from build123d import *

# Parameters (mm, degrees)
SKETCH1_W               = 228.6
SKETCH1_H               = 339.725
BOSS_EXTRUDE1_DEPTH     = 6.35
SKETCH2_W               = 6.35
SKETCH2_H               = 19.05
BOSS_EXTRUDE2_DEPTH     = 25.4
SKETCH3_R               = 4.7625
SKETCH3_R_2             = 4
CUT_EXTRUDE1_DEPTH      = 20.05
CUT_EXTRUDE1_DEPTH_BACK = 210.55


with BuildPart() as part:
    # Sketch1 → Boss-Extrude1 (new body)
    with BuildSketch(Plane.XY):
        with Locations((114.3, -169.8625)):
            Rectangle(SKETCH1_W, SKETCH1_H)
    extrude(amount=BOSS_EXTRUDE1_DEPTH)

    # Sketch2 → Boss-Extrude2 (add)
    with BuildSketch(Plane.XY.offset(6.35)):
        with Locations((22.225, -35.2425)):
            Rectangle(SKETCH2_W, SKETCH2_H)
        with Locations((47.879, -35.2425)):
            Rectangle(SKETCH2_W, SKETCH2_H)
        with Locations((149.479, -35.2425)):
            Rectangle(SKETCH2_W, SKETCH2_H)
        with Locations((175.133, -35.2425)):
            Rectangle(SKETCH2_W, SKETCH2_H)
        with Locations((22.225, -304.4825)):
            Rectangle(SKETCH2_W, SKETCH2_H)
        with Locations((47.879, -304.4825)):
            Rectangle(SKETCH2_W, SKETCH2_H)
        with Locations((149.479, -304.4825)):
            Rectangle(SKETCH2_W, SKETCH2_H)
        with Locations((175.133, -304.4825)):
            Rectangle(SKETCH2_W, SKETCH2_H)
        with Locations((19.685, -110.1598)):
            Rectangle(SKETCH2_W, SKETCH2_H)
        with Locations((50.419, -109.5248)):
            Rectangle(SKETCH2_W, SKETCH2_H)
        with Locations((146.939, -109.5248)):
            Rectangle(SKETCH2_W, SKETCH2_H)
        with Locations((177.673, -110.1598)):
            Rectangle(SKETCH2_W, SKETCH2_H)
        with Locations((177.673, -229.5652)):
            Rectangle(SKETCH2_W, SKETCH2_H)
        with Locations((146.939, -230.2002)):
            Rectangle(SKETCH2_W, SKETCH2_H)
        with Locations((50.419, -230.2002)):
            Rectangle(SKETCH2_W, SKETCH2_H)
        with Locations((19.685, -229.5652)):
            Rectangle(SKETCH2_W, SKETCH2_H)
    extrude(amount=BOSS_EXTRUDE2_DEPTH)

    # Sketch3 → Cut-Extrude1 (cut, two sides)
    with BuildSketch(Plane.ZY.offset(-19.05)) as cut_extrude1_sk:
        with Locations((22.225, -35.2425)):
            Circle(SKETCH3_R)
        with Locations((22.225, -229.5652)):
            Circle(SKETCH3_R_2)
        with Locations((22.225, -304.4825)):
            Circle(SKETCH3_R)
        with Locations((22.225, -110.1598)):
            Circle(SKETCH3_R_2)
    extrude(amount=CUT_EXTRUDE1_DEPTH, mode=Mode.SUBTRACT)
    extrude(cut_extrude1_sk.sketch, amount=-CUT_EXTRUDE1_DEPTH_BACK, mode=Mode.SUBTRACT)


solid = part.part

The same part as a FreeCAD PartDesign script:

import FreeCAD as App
import Part
import Sketcher
Q = App.Units.Quantity

doc = App.newDocument("Part")
body = doc.addObject("PartDesign::Body", "Body")

# Sketch on XY plane
sketch1 = body.newObject("Sketcher::SketchObject", "Sketch")
sketch1.AttachmentSupport = (doc.getObject("XY_Plane"), [""])
sketch1.MapMode = "FlatFace"
sketch1.addGeometry(Part.LineSegment(App.Vector(0, 0, 0), App.Vector(0, -340, 0)), False)
sketch1.addGeometry(Part.LineSegment(App.Vector(0, -340, 0), App.Vector(229, -340, 0)), False)
sketch1.addGeometry(Part.LineSegment(App.Vector(229, -340, 0), App.Vector(229, 0, 0)), False)
sketch1.addGeometry(Part.LineSegment(App.Vector(229, 0, 0), App.Vector(0, 0, 0)), False)
sketch1.addConstraint(Sketcher.Constraint("Coincident", 0, 2, 1, 1))
sketch1.addConstraint(Sketcher.Constraint("Coincident", 1, 2, 2, 1))
sketch1.addConstraint(Sketcher.Constraint("Coincident", 2, 2, 3, 1))
sketch1.addConstraint(Sketcher.Constraint("Coincident", 3, 2, 0, 1))
sketch1.addConstraint(Sketcher.Constraint("Vertical", 0))
sketch1.addConstraint(Sketcher.Constraint("Horizontal", 1))
sketch1.addConstraint(Sketcher.Constraint("Vertical", 2))
sketch1.addConstraint(Sketcher.Constraint("Horizontal", 3))
sketch1.addConstraint(Sketcher.Constraint("Coincident", 3, 2, -1, 1))
sketch1.addConstraint(Sketcher.Constraint("DistanceX", 1, 1, 1, 2, Q("9 in")))
sketch1.addConstraint(Sketcher.Constraint("DistanceY", 0, 2, 0, 1, Q("13.375 in")))
pad1 = body.newObject("PartDesign::Pad", "Pad")
pad1.Profile = sketch1
pad1.Length = Q("0.25 in")

# Sketch on XY plane
sketch2 = body.newObject("Sketcher::SketchObject", "Sketch001")
sketch2.AttachmentSupport = (doc.getObject("XY_Plane"), [""])
sketch2.MapMode = "FlatFace"
sketch2.AttachmentOffset = App.Placement(App.Vector(0, 0, 0.25 * 25.4), App.Rotation())
sketch2.addGeometry(Part.LineSegment(App.Vector(19, -26, 0), App.Vector(19, -45, 0)), False)
sketch2.addGeometry(Part.LineSegment(App.Vector(19, -45, 0), App.Vector(25, -45, 0)), False)
sketch2.addGeometry(Part.LineSegment(App.Vector(25, -45, 0), App.Vector(25, -26, 0)), False)
sketch2.addGeometry(Part.LineSegment(App.Vector(25, -26, 0), App.Vector(19, -26, 0)), False)
sketch2.addGeometry(Part.LineSegment(App.Vector(45, -26, 0), App.Vector(45, -45, 0)), False)
sketch2.addGeometry(Part.LineSegment(App.Vector(45, -45, 0), App.Vector(51, -45, 0)), False)
sketch2.addGeometry(Part.LineSegment(App.Vector(51, -45, 0), App.Vector(51, -26, 0)), False)
sketch2.addGeometry(Part.LineSegment(App.Vector(51, -26, 0), App.Vector(45, -26, 0)), False)
sketch2.addGeometry(Part.LineSegment(App.Vector(146, -26, 0), App.Vector(146, -45, 0)), False)
sketch2.addGeometry(Part.LineSegment(App.Vector(146, -45, 0), App.Vector(153, -45, 0)), False)
sketch2.addGeometry(Part.LineSegment(App.Vector(153, -45, 0), App.Vector(153, -26, 0)), False)
sketch2.addGeometry(Part.LineSegment(App.Vector(153, -26, 0), App.Vector(146, -26, 0)), False)
sketch2.addGeometry(Part.LineSegment(App.Vector(172, -26, 0), App.Vector(172, -45, 0)), False)
sketch2.addGeometry(Part.LineSegment(App.Vector(172, -45, 0), App.Vector(178, -45, 0)), False)
sketch2.addGeometry(Part.LineSegment(App.Vector(178, -45, 0), App.Vector(178, -26, 0)), False)
sketch2.addGeometry(Part.LineSegment(App.Vector(178, -26, 0), App.Vector(172, -26, 0)), False)
sketch2.addGeometry(Part.LineSegment(App.Vector(19, -295, 0), App.Vector(19, -314, 0)), False)
sketch2.addGeometry(Part.LineSegment(App.Vector(19, -314, 0), App.Vector(25, -314, 0)), False)
sketch2.addGeometry(Part.LineSegment(App.Vector(25, -314, 0), App.Vector(25, -295, 0)), False)
sketch2.addGeometry(Part.LineSegment(App.Vector(25, -295, 0), App.Vector(19, -295, 0)), False)
sketch2.addGeometry(Part.LineSegment(App.Vector(45, -295, 0), App.Vector(45, -314, 0)), False)
sketch2.addGeometry(Part.LineSegment(App.Vector(45, -314, 0), App.Vector(51, -314, 0)), False)
sketch2.addGeometry(Part.LineSegment(App.Vector(51, -314, 0), App.Vector(51, -295, 0)), False)
sketch2.addGeometry(Part.LineSegment(App.Vector(51, -295, 0), App.Vector(45, -295, 0)), False)
sketch2.addGeometry(Part.LineSegment(App.Vector(146, -295, 0), App.Vector(146, -314, 0)), False)
sketch2.addGeometry(Part.LineSegment(App.Vector(146, -314, 0), App.Vector(153, -314, 0)), False)
sketch2.addGeometry(Part.LineSegment(App.Vector(153, -314, 0), App.Vector(153, -295, 0)), False)
sketch2.addGeometry(Part.LineSegment(App.Vector(153, -295, 0), App.Vector(146, -295, 0)), False)
sketch2.addGeometry(Part.LineSegment(App.Vector(172, -295, 0), App.Vector(172, -314, 0)), False)
sketch2.addGeometry(Part.LineSegment(App.Vector(172, -314, 0), App.Vector(178, -314, 0)), False)
sketch2.addGeometry(Part.LineSegment(App.Vector(178, -314, 0), App.Vector(178, -295, 0)), False)
sketch2.addGeometry(Part.LineSegment(App.Vector(178, -295, 0), App.Vector(172, -295, 0)), False)
sketch2.addGeometry(Part.LineSegment(App.Vector(17, -101, 0), App.Vector(17, -120, 0)), False)
sketch2.addGeometry(Part.LineSegment(App.Vector(17, -120, 0), App.Vector(23, -120, 0)), False)
sketch2.addGeometry(Part.LineSegment(App.Vector(23, -120, 0), App.Vector(23, -101, 0)), False)
sketch2.addGeometry(Part.LineSegment(App.Vector(23, -101, 0), App.Vector(17, -101, 0)), False)
sketch2.addGeometry(Part.LineSegment(App.Vector(47, -100, 0), App.Vector(47, -119, 0)), False)
sketch2.addGeometry(Part.LineSegment(App.Vector(47, -119, 0), App.Vector(54, -119, 0)), False)
sketch2.addGeometry(Part.LineSegment(App.Vector(54, -119, 0), App.Vector(54, -100, 0)), False)
sketch2.addGeometry(Part.LineSegment(App.Vector(54, -100, 0), App.Vector(47, -100, 0)), False)
sketch2.addGeometry(Part.LineSegment(App.Vector(144, -100, 0), App.Vector(144, -119, 0)), False)
sketch2.addGeometry(Part.LineSegment(App.Vector(144, -119, 0), App.Vector(150, -119, 0)), False)
sketch2.addGeometry(Part.LineSegment(App.Vector(150, -119, 0), App.Vector(150, -100, 0)), False)
sketch2.addGeometry(Part.LineSegment(App.Vector(150, -100, 0), App.Vector(144, -100, 0)), False)
sketch2.addGeometry(Part.LineSegment(App.Vector(174, -101, 0), App.Vector(174, -120, 0)), False)
sketch2.addGeometry(Part.LineSegment(App.Vector(174, -120, 0), App.Vector(181, -120, 0)), False)
sketch2.addGeometry(Part.LineSegment(App.Vector(181, -120, 0), App.Vector(181, -101, 0)), False)
sketch2.addGeometry(Part.LineSegment(App.Vector(181, -101, 0), App.Vector(174, -101, 0)), False)
sketch2.addGeometry(Part.LineSegment(App.Vector(174, -220, 0), App.Vector(174, -239, 0)), False)
sketch2.addGeometry(Part.LineSegment(App.Vector(174, -239, 0), App.Vector(181, -239, 0)), False)
sketch2.addGeometry(Part.LineSegment(App.Vector(181, -239, 0), App.Vector(181, -220, 0)), False)
sketch2.addGeometry(Part.LineSegment(App.Vector(181, -220, 0), App.Vector(174, -220, 0)), False)
sketch2.addGeometry(Part.LineSegment(App.Vector(144, -221, 0), App.Vector(144, -240, 0)), False)
sketch2.addGeometry(Part.LineSegment(App.Vector(144, -240, 0), App.Vector(150, -240, 0)), False)
sketch2.addGeometry(Part.LineSegment(App.Vector(150, -240, 0), App.Vector(150, -221, 0)), False)
sketch2.addGeometry(Part.LineSegment(App.Vector(150, -221, 0), App.Vector(144, -221, 0)), False)
sketch2.addGeometry(Part.LineSegment(App.Vector(47, -221, 0), App.Vector(47, -240, 0)), False)
sketch2.addGeometry(Part.LineSegment(App.Vector(47, -240, 0), App.Vector(54, -240, 0)), False)
sketch2.addGeometry(Part.LineSegment(App.Vector(54, -240, 0), App.Vector(54, -221, 0)), False)
sketch2.addGeometry(Part.LineSegment(App.Vector(54, -221, 0), App.Vector(47, -221, 0)), False)
sketch2.addGeometry(Part.LineSegment(App.Vector(17, -220, 0), App.Vector(17, -239, 0)), False)
sketch2.addGeometry(Part.LineSegment(App.Vector(17, -239, 0), App.Vector(23, -239, 0)), False)
sketch2.addGeometry(Part.LineSegment(App.Vector(23, -239, 0), App.Vector(23, -220, 0)), False)
sketch2.addGeometry(Part.LineSegment(App.Vector(23, -220, 0), App.Vector(17, -220, 0)), False)
sketch2.addConstraint(Sketcher.Constraint("Coincident", 0, 2, 1, 1))
sketch2.addConstraint(Sketcher.Constraint("Coincident", 1, 2, 2, 1))
sketch2.addConstraint(Sketcher.Constraint("Coincident", 2, 2, 3, 1))
sketch2.addConstraint(Sketcher.Constraint("Coincident", 3, 2, 0, 1))
sketch2.addConstraint(Sketcher.Constraint("Coincident", 4, 2, 5, 1))
sketch2.addConstraint(Sketcher.Constraint("Coincident", 5, 2, 6, 1))
sketch2.addConstraint(Sketcher.Constraint("Coincident", 6, 2, 7, 1))
sketch2.addConstraint(Sketcher.Constraint("Coincident", 7, 2, 4, 1))
sketch2.addConstraint(Sketcher.Constraint("Coincident", 8, 2, 9, 1))
sketch2.addConstraint(Sketcher.Constraint("Coincident", 9, 2, 10, 1))
sketch2.addConstraint(Sketcher.Constraint("Coincident", 10, 2, 11, 1))
sketch2.addConstraint(Sketcher.Constraint("Coincident", 11, 2, 8, 1))
sketch2.addConstraint(Sketcher.Constraint("Coincident", 12, 2, 13, 1))
sketch2.addConstraint(Sketcher.Constraint("Coincident", 13, 2, 14, 1))
sketch2.addConstraint(Sketcher.Constraint("Coincident", 14, 2, 15, 1))
sketch2.addConstraint(Sketcher.Constraint("Coincident", 15, 2, 12, 1))
sketch2.addConstraint(Sketcher.Constraint("Coincident", 16, 2, 17, 1))
sketch2.addConstraint(Sketcher.Constraint("Coincident", 17, 2, 18, 1))
sketch2.addConstraint(Sketcher.Constraint("Coincident", 18, 2, 19, 1))
sketch2.addConstraint(Sketcher.Constraint("Coincident", 19, 2, 16, 1))
sketch2.addConstraint(Sketcher.Constraint("Coincident", 20, 2, 21, 1))
sketch2.addConstraint(Sketcher.Constraint("Coincident", 21, 2, 22, 1))
sketch2.addConstraint(Sketcher.Constraint("Coincident", 22, 2, 23, 1))
sketch2.addConstraint(Sketcher.Constraint("Coincident", 23, 2, 20, 1))
sketch2.addConstraint(Sketcher.Constraint("Coincident", 24, 2, 25, 1))
sketch2.addConstraint(Sketcher.Constraint("Coincident", 25, 2, 26, 1))
sketch2.addConstraint(Sketcher.Constraint("Coincident", 26, 2, 27, 1))
sketch2.addConstraint(Sketcher.Constraint("Coincident", 27, 2, 24, 1))
sketch2.addConstraint(Sketcher.Constraint("Coincident", 28, 2, 29, 1))
sketch2.addConstraint(Sketcher.Constraint("Coincident", 29, 2, 30, 1))
sketch2.addConstraint(Sketcher.Constraint("Coincident", 30, 2, 31, 1))
sketch2.addConstraint(Sketcher.Constraint("Coincident", 31, 2, 28, 1))
sketch2.addConstraint(Sketcher.Constraint("Coincident", 32, 2, 33, 1))
sketch2.addConstraint(Sketcher.Constraint("Coincident", 33, 2, 34, 1))
sketch2.addConstraint(Sketcher.Constraint("Coincident", 34, 2, 35, 1))
sketch2.addConstraint(Sketcher.Constraint("Coincident", 35, 2, 32, 1))
sketch2.addConstraint(Sketcher.Constraint("Coincident", 36, 2, 37, 1))
sketch2.addConstraint(Sketcher.Constraint("Coincident", 37, 2, 38, 1))
sketch2.addConstraint(Sketcher.Constraint("Coincident", 38, 2, 39, 1))
sketch2.addConstraint(Sketcher.Constraint("Coincident", 39, 2, 36, 1))
sketch2.addConstraint(Sketcher.Constraint("Coincident", 40, 2, 41, 1))
sketch2.addConstraint(Sketcher.Constraint("Coincident", 41, 2, 42, 1))
sketch2.addConstraint(Sketcher.Constraint("Coincident", 42, 2, 43, 1))
sketch2.addConstraint(Sketcher.Constraint("Coincident", 43, 2, 40, 1))
sketch2.addConstraint(Sketcher.Constraint("Coincident", 44, 2, 45, 1))
sketch2.addConstraint(Sketcher.Constraint("Coincident", 45, 2, 46, 1))
sketch2.addConstraint(Sketcher.Constraint("Coincident", 46, 2, 47, 1))
sketch2.addConstraint(Sketcher.Constraint("Coincident", 47, 2, 44, 1))
sketch2.addConstraint(Sketcher.Constraint("Coincident", 48, 2, 49, 1))
sketch2.addConstraint(Sketcher.Constraint("Coincident", 49, 2, 50, 1))
sketch2.addConstraint(Sketcher.Constraint("Coincident", 50, 2, 51, 1))
sketch2.addConstraint(Sketcher.Constraint("Coincident", 51, 2, 48, 1))
sketch2.addConstraint(Sketcher.Constraint("Coincident", 52, 2, 53, 1))
sketch2.addConstraint(Sketcher.Constraint("Coincident", 53, 2, 54, 1))
sketch2.addConstraint(Sketcher.Constraint("Coincident", 54, 2, 55, 1))
sketch2.addConstraint(Sketcher.Constraint("Coincident", 55, 2, 52, 1))
sketch2.addConstraint(Sketcher.Constraint("Coincident", 56, 2, 57, 1))
sketch2.addConstraint(Sketcher.Constraint("Coincident", 57, 2, 58, 1))
sketch2.addConstraint(Sketcher.Constraint("Coincident", 58, 2, 59, 1))
sketch2.addConstraint(Sketcher.Constraint("Coincident", 59, 2, 56, 1))
sketch2.addConstraint(Sketcher.Constraint("Coincident", 60, 2, 61, 1))
sketch2.addConstraint(Sketcher.Constraint("Coincident", 61, 2, 62, 1))
sketch2.addConstraint(Sketcher.Constraint("Coincident", 62, 2, 63, 1))
sketch2.addConstraint(Sketcher.Constraint("Coincident", 63, 2, 60, 1))
sketch2.addConstraint(Sketcher.Constraint("Vertical", 0))
sketch2.addConstraint(Sketcher.Constraint("Horizontal", 1))
sketch2.addConstraint(Sketcher.Constraint("Vertical", 2))
sketch2.addConstraint(Sketcher.Constraint("Horizontal", 3))
sketch2.addConstraint(Sketcher.Constraint("Vertical", 4))
sketch2.addConstraint(Sketcher.Constraint("Horizontal", 5))
sketch2.addConstraint(Sketcher.Constraint("Vertical", 6))
sketch2.addConstraint(Sketcher.Constraint("Horizontal", 7))
sketch2.addConstraint(Sketcher.Constraint("Vertical", 8))
sketch2.addConstraint(Sketcher.Constraint("Horizontal", 9))
sketch2.addConstraint(Sketcher.Constraint("Vertical", 10))
sketch2.addConstraint(Sketcher.Constraint("Horizontal", 11))
sketch2.addConstraint(Sketcher.Constraint("Vertical", 12))
sketch2.addConstraint(Sketcher.Constraint("Horizontal", 13))
sketch2.addConstraint(Sketcher.Constraint("Vertical", 14))
sketch2.addConstraint(Sketcher.Constraint("Horizontal", 15))
sketch2.addConstraint(Sketcher.Constraint("Vertical", 16))
sketch2.addConstraint(Sketcher.Constraint("Horizontal", 17))
sketch2.addConstraint(Sketcher.Constraint("Vertical", 18))
sketch2.addConstraint(Sketcher.Constraint("Horizontal", 19))
sketch2.addConstraint(Sketcher.Constraint("Vertical", 20))
sketch2.addConstraint(Sketcher.Constraint("Horizontal", 21))
sketch2.addConstraint(Sketcher.Constraint("Vertical", 22))
sketch2.addConstraint(Sketcher.Constraint("Horizontal", 23))
sketch2.addConstraint(Sketcher.Constraint("Vertical", 24))
sketch2.addConstraint(Sketcher.Constraint("Horizontal", 25))
sketch2.addConstraint(Sketcher.Constraint("Vertical", 26))
sketch2.addConstraint(Sketcher.Constraint("Horizontal", 27))
sketch2.addConstraint(Sketcher.Constraint("Vertical", 28))
sketch2.addConstraint(Sketcher.Constraint("Horizontal", 29))
sketch2.addConstraint(Sketcher.Constraint("Vertical", 30))
sketch2.addConstraint(Sketcher.Constraint("Horizontal", 31))
sketch2.addConstraint(Sketcher.Constraint("Vertical", 32))
sketch2.addConstraint(Sketcher.Constraint("Horizontal", 33))
sketch2.addConstraint(Sketcher.Constraint("Vertical", 34))
sketch2.addConstraint(Sketcher.Constraint("Horizontal", 35))
sketch2.addConstraint(Sketcher.Constraint("Vertical", 36))
sketch2.addConstraint(Sketcher.Constraint("Horizontal", 37))
sketch2.addConstraint(Sketcher.Constraint("Vertical", 38))
sketch2.addConstraint(Sketcher.Constraint("Horizontal", 39))
sketch2.addConstraint(Sketcher.Constraint("Vertical", 40))
sketch2.addConstraint(Sketcher.Constraint("Horizontal", 41))
sketch2.addConstraint(Sketcher.Constraint("Vertical", 42))
sketch2.addConstraint(Sketcher.Constraint("Horizontal", 43))
sketch2.addConstraint(Sketcher.Constraint("Vertical", 44))
sketch2.addConstraint(Sketcher.Constraint("Horizontal", 45))
sketch2.addConstraint(Sketcher.Constraint("Vertical", 46))
sketch2.addConstraint(Sketcher.Constraint("Horizontal", 47))
sketch2.addConstraint(Sketcher.Constraint("Vertical", 48))
sketch2.addConstraint(Sketcher.Constraint("Horizontal", 49))
sketch2.addConstraint(Sketcher.Constraint("Vertical", 50))
sketch2.addConstraint(Sketcher.Constraint("Horizontal", 51))
sketch2.addConstraint(Sketcher.Constraint("Vertical", 52))
sketch2.addConstraint(Sketcher.Constraint("Horizontal", 53))
sketch2.addConstraint(Sketcher.Constraint("Vertical", 54))
sketch2.addConstraint(Sketcher.Constraint("Horizontal", 55))
sketch2.addConstraint(Sketcher.Constraint("Vertical", 56))
sketch2.addConstraint(Sketcher.Constraint("Horizontal", 57))
sketch2.addConstraint(Sketcher.Constraint("Vertical", 58))
sketch2.addConstraint(Sketcher.Constraint("Horizontal", 59))
sketch2.addConstraint(Sketcher.Constraint("Vertical", 60))
sketch2.addConstraint(Sketcher.Constraint("Horizontal", 61))
sketch2.addConstraint(Sketcher.Constraint("Vertical", 62))
sketch2.addConstraint(Sketcher.Constraint("Horizontal", 63))
sketch2.addConstraint(Sketcher.Constraint("Horizontal", 1, 2, 4, 2))
sketch2.addConstraint(Sketcher.Constraint("Horizontal", 3, 2, 6, 2))
sketch2.addConstraint(Sketcher.Constraint("Horizontal", 5, 2, 8, 2))
sketch2.addConstraint(Sketcher.Constraint("Horizontal", 7, 2, 10, 2))
sketch2.addConstraint(Sketcher.Constraint("Horizontal", 9, 2, 12, 2))
sketch2.addConstraint(Sketcher.Constraint("Horizontal", 11, 2, 14, 2))
sketch2.addConstraint(Sketcher.Constraint("Horizontal", 17, 2, 20, 2))
sketch2.addConstraint(Sketcher.Constraint("Horizontal", 19, 2, 22, 2))
sketch2.addConstraint(Sketcher.Constraint("Horizontal", 21, 2, 24, 2))
sketch2.addConstraint(Sketcher.Constraint("Horizontal", 23, 2, 26, 2))
sketch2.addConstraint(Sketcher.Constraint("Horizontal", 25, 2, 28, 2))
sketch2.addConstraint(Sketcher.Constraint("Horizontal", 27, 2, 30, 2))
sketch2.addConstraint(Sketcher.Constraint("Horizontal", 37, 2, 40, 2))
sketch2.addConstraint(Sketcher.Constraint("Horizontal", 39, 2, 42, 2))
sketch2.addConstraint(Sketcher.Constraint("Horizontal", 33, 2, 44, 2))
sketch2.addConstraint(Sketcher.Constraint("Horizontal", 35, 2, 46, 2))
sketch2.addConstraint(Sketcher.Constraint("Horizontal", 53, 2, 56, 2))
sketch2.addConstraint(Sketcher.Constraint("Horizontal", 55, 2, 58, 2))
sketch2.addConstraint(Sketcher.Constraint("Horizontal", 49, 2, 60, 2))
sketch2.addConstraint(Sketcher.Constraint("Horizontal", 51, 2, 62, 2))
sketch2.addConstraint(Sketcher.Constraint("Vertical", 3, 2, 16, 2))
sketch2.addConstraint(Sketcher.Constraint("Vertical", 2, 2, 17, 2))
sketch2.addConstraint(Sketcher.Constraint("Vertical", 7, 2, 20, 2))
sketch2.addConstraint(Sketcher.Constraint("Vertical", 6, 2, 21, 2))
sketch2.addConstraint(Sketcher.Constraint("Vertical", 11, 2, 24, 2))
sketch2.addConstraint(Sketcher.Constraint("Vertical", 10, 2, 25, 2))
sketch2.addConstraint(Sketcher.Constraint("Vertical", 15, 2, 28, 2))
sketch2.addConstraint(Sketcher.Constraint("Vertical", 14, 2, 29, 2))
sketch2.addConstraint(Sketcher.Constraint("Vertical", 47, 2, 48, 2))
sketch2.addConstraint(Sketcher.Constraint("Vertical", 46, 2, 49, 2))
sketch2.addConstraint(Sketcher.Constraint("Vertical", 43, 2, 52, 2))
sketch2.addConstraint(Sketcher.Constraint("Vertical", 42, 2, 53, 2))
sketch2.addConstraint(Sketcher.Constraint("Vertical", 39, 2, 56, 2))
sketch2.addConstraint(Sketcher.Constraint("Vertical", 38, 2, 57, 2))
sketch2.addConstraint(Sketcher.Constraint("Vertical", 35, 2, 60, 2))
sketch2.addConstraint(Sketcher.Constraint("Vertical", 34, 2, 61, 2))
sketch2.addConstraint(Sketcher.Constraint("Equal", 3, 5))
sketch2.addConstraint(Sketcher.Constraint("Equal", 7, 9))
sketch2.addConstraint(Sketcher.Constraint("Equal", 11, 13))
sketch2.addConstraint(Sketcher.Constraint("Equal", 31, 33))
sketch2.addConstraint(Sketcher.Constraint("Equal", 35, 37))
sketch2.addConstraint(Sketcher.Constraint("Equal", 39, 41))
sketch2.addConstraint(Sketcher.Constraint("Equal", 43, 45))
sketch2.addConstraint(Sketcher.Constraint("Equal", 14, 16))
sketch2.addConstraint(Sketcher.Constraint("Equal", 30, 32))
sketch2.addConstraint(Sketcher.Constraint("Equal", 34, 36))
sketch2.addConstraint(Sketcher.Constraint("Equal", 46, 48))
sketch2.addConstraint(Sketcher.Constraint("Equal", 50, 52))
sketch2.addConstraint(Sketcher.Constraint("DistanceX", -1, 1, 1, 2, Q("1 in")))
sketch2.addConstraint(Sketcher.Constraint("DistanceX", 1, 1, 1, 2, Q("0.25 in")))
sketch2.addConstraint(Sketcher.Constraint("DistanceY", 0, 2, 0, 1, Q("0.75 in")))
sketch2.addConstraint(Sketcher.Constraint("DistanceX", -1, 1, 33, 2, Q("0.9 in")))
sketch2.addConstraint(Sketcher.Constraint("DistanceX", -1, 1, 4, 2, Q("1.76 in")))
sketch2.addConstraint(Sketcher.Constraint("DistanceX", -1, 1, 8, 2, Q("5.76 in")))
sketch2.addConstraint(Sketcher.Constraint("DistanceX", -1, 1, 12, 2, Q("6.77 in")))
sketch2.addConstraint(Sketcher.Constraint("DistanceX", -1, 1, 36, 2, Q("1.86 in")))
sketch2.addConstraint(Sketcher.Constraint("DistanceX", -1, 1, 40, 2, Q("5.66 in")))
sketch2.addConstraint(Sketcher.Constraint("DistanceX", -1, 1, 44, 2, Q("6.87 in")))
sketch2.addConstraint(Sketcher.Constraint("DistanceY", 32, 2, -1, 1, Q("4.712 in")))
sketch2.addConstraint(Sketcher.Constraint("DistanceY", 36, 2, -1, 1, Q("4.687 in")))
sketch2.addConstraint(Sketcher.Constraint("DistanceY", 48, 2, -1, 1, Q("9.413 in")))
sketch2.addConstraint(Sketcher.Constraint("DistanceY", 52, 2, -1, 1, Q("9.438 in")))
sketch2.addConstraint(Sketcher.Constraint("DistanceY", 0, 2, -1, 1, Q("1.7625 in")))
sketch2.addConstraint(Sketcher.Constraint("DistanceY", 16, 2, -1, 1, Q("12.3625 in")))
pad2 = body.newObject("PartDesign::Pad", "Pad001")
pad2.Profile = sketch2
pad2.Length = Q("1 in")

# Sketch on YZ plane
sketch3 = body.newObject("Sketcher::SketchObject", "Sketch002")
sketch3.AttachmentSupport = (doc.getObject("YZ_Plane"), [""])
sketch3.MapMode = "FlatFace"
sketch3.AttachmentOffset = App.Placement(App.Vector(0, 0, 0.75 * 25.4), App.Rotation())
sketch3.addGeometry(Part.Circle(App.Vector(-35.2, 22.2, 0), App.Vector(0, 0, 1), 4.8), False)
sketch3.addGeometry(Part.Circle(App.Vector(-229.6, 22.2, 0), App.Vector(0, 0, 1), 4), False)
sketch3.addGeometry(Part.Circle(App.Vector(-304.5, 22.2, 0), App.Vector(0, 0, 1), 4.8), False)
sketch3.addGeometry(Part.Circle(App.Vector(-110.2, 22.2, 0), App.Vector(0, 0, 1), 4), False)
sketch3.addConstraint(Sketcher.Constraint("Equal", 0, 2))
sketch3.addConstraint(Sketcher.Constraint("Equal", 1, 3))
sketch3.addConstraint(Sketcher.Constraint("Horizontal", 0, 3, 1, 3))
sketch3.addConstraint(Sketcher.Constraint("Horizontal", 1, 3, 2, 3))
sketch3.addConstraint(Sketcher.Constraint("Horizontal", 2, 3, 3, 3))
sketch3.addConstraint(Sketcher.Constraint("Diameter", 0, Q("0.375 in")))
sketch3.addConstraint(Sketcher.Constraint("DistanceX", 2, 3, 0, 3, Q("10.6 in")))
sketch3.addConstraint(Sketcher.Constraint("Diameter", 1, Q("8 mm")))
sketch3.addConstraint(Sketcher.Constraint("DistanceY", -1, 1, 0, 3, Q("0.875 in")))
sketch3.addConstraint(Sketcher.Constraint("DistanceX", 1, 3, -1, 1, Q("9.038 in")))
sketch3.addConstraint(Sketcher.Constraint("DistanceX", 3, 3, -1, 1, Q("4.337 in")))
sketch3.addConstraint(Sketcher.Constraint("DistanceX", 0, 3, -1, 1, Q("1.3875 in")))
pocket1 = body.newObject("PartDesign::Pocket", "Pocket")
pocket1.Profile = sketch3
pocket1.Type = "ThroughAll"
pocket1.Midplane = True

doc.recompute()
